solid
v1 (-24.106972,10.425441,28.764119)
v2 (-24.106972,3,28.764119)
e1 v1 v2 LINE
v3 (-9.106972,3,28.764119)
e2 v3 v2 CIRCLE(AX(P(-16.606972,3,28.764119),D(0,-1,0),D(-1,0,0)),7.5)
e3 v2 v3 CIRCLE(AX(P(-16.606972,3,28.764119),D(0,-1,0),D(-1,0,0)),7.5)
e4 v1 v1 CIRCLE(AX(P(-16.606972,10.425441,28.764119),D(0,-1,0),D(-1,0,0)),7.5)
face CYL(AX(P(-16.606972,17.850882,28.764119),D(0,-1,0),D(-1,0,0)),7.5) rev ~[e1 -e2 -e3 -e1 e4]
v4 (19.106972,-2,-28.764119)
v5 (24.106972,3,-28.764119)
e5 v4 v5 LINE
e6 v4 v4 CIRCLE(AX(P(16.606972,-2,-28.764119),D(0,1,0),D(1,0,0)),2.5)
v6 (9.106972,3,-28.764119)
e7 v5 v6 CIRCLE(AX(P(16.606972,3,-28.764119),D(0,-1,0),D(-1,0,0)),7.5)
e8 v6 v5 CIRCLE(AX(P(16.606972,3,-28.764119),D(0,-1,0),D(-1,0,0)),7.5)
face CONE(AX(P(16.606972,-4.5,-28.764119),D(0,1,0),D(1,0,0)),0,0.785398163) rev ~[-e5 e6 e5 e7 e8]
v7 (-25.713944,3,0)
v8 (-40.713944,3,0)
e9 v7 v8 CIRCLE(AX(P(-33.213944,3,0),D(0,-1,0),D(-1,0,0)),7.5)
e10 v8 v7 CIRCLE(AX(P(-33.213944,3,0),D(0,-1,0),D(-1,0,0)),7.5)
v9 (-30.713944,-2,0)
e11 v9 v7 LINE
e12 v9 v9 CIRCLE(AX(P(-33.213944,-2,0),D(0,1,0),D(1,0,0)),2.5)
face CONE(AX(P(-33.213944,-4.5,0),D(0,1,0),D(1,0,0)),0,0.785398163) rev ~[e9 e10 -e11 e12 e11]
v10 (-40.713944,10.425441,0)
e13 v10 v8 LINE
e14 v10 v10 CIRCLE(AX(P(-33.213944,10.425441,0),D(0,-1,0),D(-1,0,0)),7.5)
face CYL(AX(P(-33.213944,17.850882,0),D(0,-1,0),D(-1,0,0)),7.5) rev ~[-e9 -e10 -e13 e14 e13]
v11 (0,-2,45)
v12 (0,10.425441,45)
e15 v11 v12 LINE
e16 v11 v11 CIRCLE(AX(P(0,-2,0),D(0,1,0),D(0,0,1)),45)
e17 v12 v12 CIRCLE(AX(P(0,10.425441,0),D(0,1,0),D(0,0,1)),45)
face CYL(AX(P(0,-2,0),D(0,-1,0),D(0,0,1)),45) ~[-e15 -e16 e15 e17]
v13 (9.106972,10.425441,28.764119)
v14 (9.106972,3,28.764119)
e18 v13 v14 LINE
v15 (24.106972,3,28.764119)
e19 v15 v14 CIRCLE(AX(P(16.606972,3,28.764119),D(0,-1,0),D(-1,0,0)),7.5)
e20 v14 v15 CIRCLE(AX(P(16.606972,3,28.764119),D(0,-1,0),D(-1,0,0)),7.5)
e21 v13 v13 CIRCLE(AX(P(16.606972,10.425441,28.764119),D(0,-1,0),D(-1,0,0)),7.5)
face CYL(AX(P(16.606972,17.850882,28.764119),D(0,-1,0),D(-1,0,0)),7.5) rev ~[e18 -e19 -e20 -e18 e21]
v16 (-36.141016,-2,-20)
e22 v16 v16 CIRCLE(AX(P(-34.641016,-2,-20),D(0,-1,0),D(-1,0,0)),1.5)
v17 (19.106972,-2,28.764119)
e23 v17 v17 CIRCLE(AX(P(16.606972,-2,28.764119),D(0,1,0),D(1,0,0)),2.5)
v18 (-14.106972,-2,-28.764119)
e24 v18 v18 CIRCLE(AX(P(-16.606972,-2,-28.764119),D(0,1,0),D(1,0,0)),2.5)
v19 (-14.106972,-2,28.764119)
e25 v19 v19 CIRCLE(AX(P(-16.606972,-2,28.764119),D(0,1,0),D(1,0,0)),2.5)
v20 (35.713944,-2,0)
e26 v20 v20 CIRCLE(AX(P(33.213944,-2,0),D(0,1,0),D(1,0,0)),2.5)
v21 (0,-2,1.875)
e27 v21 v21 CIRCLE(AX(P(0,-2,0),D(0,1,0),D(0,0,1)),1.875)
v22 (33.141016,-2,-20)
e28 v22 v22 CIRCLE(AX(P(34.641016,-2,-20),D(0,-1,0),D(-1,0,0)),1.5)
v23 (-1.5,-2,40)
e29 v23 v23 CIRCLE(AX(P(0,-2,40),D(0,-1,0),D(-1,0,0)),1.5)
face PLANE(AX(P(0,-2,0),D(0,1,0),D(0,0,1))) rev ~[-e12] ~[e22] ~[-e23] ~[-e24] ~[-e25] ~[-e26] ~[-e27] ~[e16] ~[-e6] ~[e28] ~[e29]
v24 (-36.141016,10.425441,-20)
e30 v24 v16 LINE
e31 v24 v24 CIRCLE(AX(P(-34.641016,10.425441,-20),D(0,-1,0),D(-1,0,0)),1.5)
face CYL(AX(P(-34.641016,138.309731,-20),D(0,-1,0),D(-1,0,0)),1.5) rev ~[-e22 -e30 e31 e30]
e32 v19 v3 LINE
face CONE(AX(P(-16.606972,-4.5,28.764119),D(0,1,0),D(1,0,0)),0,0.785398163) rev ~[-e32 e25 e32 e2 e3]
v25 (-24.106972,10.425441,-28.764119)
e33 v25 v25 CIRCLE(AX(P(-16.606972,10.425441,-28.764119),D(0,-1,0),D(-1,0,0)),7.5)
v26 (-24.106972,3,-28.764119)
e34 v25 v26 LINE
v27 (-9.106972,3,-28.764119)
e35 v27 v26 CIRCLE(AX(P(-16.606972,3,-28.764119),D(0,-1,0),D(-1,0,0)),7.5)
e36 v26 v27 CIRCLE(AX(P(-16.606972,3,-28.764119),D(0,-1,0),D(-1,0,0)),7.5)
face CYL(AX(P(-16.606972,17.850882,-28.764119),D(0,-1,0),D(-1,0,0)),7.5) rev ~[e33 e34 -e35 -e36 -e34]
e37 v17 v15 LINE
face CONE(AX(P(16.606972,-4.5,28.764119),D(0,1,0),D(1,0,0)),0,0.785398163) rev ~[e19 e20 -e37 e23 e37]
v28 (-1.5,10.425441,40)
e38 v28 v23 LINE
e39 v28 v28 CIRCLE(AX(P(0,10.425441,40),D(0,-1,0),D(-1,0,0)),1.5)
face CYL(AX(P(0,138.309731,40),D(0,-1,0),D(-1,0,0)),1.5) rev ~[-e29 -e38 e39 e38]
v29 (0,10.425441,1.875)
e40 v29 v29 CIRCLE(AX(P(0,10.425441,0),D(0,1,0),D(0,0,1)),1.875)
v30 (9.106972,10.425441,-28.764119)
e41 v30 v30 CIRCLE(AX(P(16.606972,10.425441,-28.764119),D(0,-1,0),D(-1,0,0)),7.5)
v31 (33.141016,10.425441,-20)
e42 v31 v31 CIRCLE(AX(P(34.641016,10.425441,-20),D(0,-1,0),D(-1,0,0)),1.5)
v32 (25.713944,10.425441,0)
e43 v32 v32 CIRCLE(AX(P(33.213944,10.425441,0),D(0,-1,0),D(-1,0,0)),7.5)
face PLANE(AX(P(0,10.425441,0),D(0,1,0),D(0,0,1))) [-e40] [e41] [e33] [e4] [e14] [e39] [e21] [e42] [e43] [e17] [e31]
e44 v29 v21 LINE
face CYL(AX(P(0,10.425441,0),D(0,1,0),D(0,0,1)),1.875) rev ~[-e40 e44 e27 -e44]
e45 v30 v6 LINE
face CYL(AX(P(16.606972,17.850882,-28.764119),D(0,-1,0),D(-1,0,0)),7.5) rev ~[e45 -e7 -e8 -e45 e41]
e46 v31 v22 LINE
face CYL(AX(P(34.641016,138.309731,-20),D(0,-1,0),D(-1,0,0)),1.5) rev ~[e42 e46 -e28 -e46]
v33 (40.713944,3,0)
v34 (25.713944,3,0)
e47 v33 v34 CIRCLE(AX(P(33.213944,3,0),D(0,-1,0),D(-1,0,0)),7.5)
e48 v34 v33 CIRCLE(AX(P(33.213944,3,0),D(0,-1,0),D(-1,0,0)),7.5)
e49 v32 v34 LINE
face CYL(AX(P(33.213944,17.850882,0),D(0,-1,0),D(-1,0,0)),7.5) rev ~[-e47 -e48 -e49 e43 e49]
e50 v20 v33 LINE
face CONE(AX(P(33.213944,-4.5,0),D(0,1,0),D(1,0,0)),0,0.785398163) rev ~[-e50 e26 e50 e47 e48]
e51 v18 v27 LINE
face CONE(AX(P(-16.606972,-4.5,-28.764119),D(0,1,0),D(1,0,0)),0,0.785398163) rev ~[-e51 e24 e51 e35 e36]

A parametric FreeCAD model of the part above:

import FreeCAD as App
import Part
import Sketcher

V = App.Vector

doc = App.newDocument("Part")
body = doc.addObject("PartDesign::Body", "Body")

# Sketch on XZ plane
sketch1 = doc.addObject("Sketcher::SketchObject", "Sketch")
body.addObject(sketch1)
sketch1.AttachmentSupport = (doc.XZ_Plane, [""])
sketch1.MapMode = "FlatFace"
sketch1.addGeometry(Part.Circle(V(0, 0, 0), V(0, 0, 1), 45), False)
sketch1.addConstraint([
    Sketcher.Constraint("Coincident", 0, 3, -1, 1),
    Sketcher.Constraint("Diameter", 0, 90.0),
])
pad1 = doc.addObject("PartDesign::Pad", "Pad")
body.addObject(pad1)
pad1.Profile = sketch1
pad1.Type = "TwoLengths"
pad1.Length = 10.425441
pad1.Length2 = 2
pad1.Reversed = True

# Sketch on XZ plane
sketch2 = doc.addObject("Sketcher::SketchObject", "Sketch001")
body.addObject(sketch2)
sketch2.AttachmentSupport = (doc.XZ_Plane, [""])
sketch2.MapMode = "FlatFace"
sketch2.AttachmentOffset = App.Placement(V(0, 0, -10.425441), App.Rotation())
sketch2.addGeometry([
    Part.Circle(V(-16.606972, -28.764119, 0), V(0, 0, 1), 7.5),  # 0
    Part.Circle(V(-16.606972, 28.764119, 0), V(0, 0, 1), 7.5),  # 1
    Part.Circle(V(33.213944, 0, 0), V(0, 0, 1), 7.5),  # 2
    Part.Circle(V(16.606972, -28.764119, 0), V(0, 0, 1), 7.5),  # 3
    Part.Circle(V(16.606972, 28.764119, 0), V(0, 0, 1), 7.5),  # 4
    Part.Circle(V(-33.213944, 0, 0), V(0, 0, 1), 7.5),  # 5
], False)
sketch2.addConstraint([
    Sketcher.Constraint("Equal", 0, 1),
    Sketcher.Constraint("Equal", 1, 2),
    Sketcher.Constraint("Equal", 2, 3),
    Sketcher.Constraint("Equal", 3, 4),
    Sketcher.Constraint("Equal", 4, 5),
    Sketcher.Constraint("Symmetric", 1, 3, 3, 3, -1, 1),
    Sketcher.Constraint("Symmetric", 0, 3, 4, 3, -1, 1),
    Sketcher.Constraint("Symmetric", 2, 3, 5, 3, -1, 1),
    Sketcher.Constraint("Symmetric", 0, 3, 3, 3, -2),
    Sketcher.Constraint("PointOnObject", 2, 3, -1),
    Sketcher.Constraint("Diameter", 0, 15.0),
    Sketcher.Constraint("DistanceX", 0, 3, -1, 1, 16.606972),
    Sketcher.Constraint("DistanceY", 0, 3, -1, 1, 28.764119),
    Sketcher.Constraint("DistanceX", 3, 3, 2, 3, 16.606972),
])
doc.recompute()
hole = doc.addObject("PartDesign::Hole", "Hole")
body.addObject(hole)
hole.Profile = sketch2
hole.ThreadType = "None"
hole.Diameter = 15
hole.DepthType = "Dimension"
hole.Depth = 7.425441
hole.DrillPoint = "Angled"
hole.DrillPointAngle = 90
hole.Reversed = True

# Sketch on XZ plane
sketch3 = doc.addObject("Sketcher::SketchObject", "Sketch002")
body.addObject(sketch3)
sketch3.AttachmentSupport = (doc.XZ_Plane, [""])
sketch3.MapMode = "FlatFace"
sketch3.AttachmentOffset = App.Placement(V(0, 0, -10.425441), App.Rotation())
sketch3.addGeometry([
    Part.Circle(V(-34.641016, -20, 0), V(0, 0, 1), 1.5),
    Part.Circle(V(0, 40, 0), V(0, 0, 1), 1.5),
    Part.Circle(V(34.641016, -20, 0), V(0, 0, 1), 1.5),
], False)
sketch3.addConstraint([
    Sketcher.Constraint("Equal", 0, 1),
    Sketcher.Constraint("Equal", 1, 2),
    Sketcher.Constraint("Symmetric", 0, 3, 2, 3, -2),
    Sketcher.Constraint("PointOnObject", 1, 3, -2),
    Sketcher.Constraint("Diameter", 0, 3.0),
    Sketcher.Constraint("DistanceY", 0, 3, -1, 1, 20.0),
    Sketcher.Constraint("DistanceY", -1, 1, 1, 3, 40.0),
    Sketcher.Constraint("DistanceX", 0, 3, -1, 1, 34.641016),
])
doc.recompute()
hole2 = doc.addObject("PartDesign::Hole", "Hole001")
body.addObject(hole2)
hole2.Profile = sketch3
hole2.ThreadType = "None"
hole2.Diameter = 3
hole2.DepthType = "ThroughAll"
hole2.Reversed = True

# Sketch on XZ plane
sketch4 = doc.addObject("Sketcher::SketchObject", "Sketch003")
body.addObject(sketch4)
sketch4.AttachmentSupport = (doc.XZ_Plane, [""])
sketch4.MapMode = "FlatFace"
sketch4.AttachmentOffset = App.Placement(V(0, 0, -10.425441), App.Rotation())
sketch4.addGeometry(Part.Circle(V(0, 0, 0), V(0, 0, 1), 1.875), False)
sketch4.addConstraint([
    Sketcher.Constraint("Coincident", 0, 3, -1, 1),
    Sketcher.Constraint("Diameter", 0, 3.75),
])
pocket1 = doc.addObject("PartDesign::Pocket", "Pocket")
body.addObject(pocket1)
pocket1.Profile = sketch4
pocket1.Length = 15
pocket1.Reversed = True

doc.recompute()
